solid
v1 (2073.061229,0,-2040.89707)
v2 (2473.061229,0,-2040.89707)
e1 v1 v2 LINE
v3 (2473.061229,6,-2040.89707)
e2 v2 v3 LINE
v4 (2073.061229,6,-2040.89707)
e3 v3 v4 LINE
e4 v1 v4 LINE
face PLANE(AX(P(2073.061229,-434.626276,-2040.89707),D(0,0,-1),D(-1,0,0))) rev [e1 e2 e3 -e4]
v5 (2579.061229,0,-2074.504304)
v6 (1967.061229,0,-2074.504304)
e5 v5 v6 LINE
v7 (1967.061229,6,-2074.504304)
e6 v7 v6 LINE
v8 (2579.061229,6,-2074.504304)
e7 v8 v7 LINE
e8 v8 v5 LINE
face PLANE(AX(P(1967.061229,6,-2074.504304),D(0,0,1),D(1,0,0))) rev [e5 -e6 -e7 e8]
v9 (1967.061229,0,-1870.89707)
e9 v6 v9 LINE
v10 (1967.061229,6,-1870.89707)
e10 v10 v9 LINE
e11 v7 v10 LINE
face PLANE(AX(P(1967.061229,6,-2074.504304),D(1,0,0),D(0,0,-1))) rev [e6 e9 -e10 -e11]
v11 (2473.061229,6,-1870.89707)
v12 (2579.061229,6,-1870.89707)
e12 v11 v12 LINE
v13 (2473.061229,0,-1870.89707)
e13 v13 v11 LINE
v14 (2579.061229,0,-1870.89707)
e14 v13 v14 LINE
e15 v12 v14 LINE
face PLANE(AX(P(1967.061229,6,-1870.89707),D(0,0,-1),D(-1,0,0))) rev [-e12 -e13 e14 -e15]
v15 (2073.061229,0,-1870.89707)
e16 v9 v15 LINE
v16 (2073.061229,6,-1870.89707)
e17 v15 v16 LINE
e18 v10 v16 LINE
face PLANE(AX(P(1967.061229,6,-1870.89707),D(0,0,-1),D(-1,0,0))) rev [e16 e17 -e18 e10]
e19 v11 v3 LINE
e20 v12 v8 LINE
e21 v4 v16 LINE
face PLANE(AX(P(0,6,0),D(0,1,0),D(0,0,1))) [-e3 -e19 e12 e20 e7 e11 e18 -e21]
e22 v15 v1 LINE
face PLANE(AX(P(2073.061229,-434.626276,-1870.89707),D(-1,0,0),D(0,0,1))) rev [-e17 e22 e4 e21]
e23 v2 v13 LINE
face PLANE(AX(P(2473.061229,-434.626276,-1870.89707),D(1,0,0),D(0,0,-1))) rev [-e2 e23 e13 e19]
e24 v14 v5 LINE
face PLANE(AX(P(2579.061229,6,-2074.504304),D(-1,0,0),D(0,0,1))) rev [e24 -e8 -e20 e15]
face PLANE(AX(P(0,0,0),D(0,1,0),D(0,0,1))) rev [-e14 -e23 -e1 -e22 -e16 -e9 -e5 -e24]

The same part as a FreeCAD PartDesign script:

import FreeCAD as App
import Part
import Sketcher
from FreeCAD import Vector
Q = App.Units.Quantity


def add_polygon(sketch, points):
    """Adds a closed chain of lines whose ends are joined by coincident constraints."""
    first, n = sketch.GeometryCount, len(points)
    for a, b in zip(points, points[1:] + points[:1]):
        sketch.addGeometry(Part.LineSegment(App.Vector(*a, 0), App.Vector(*b, 0)), False)
    for i in range(n):
        sketch.addConstraint(Sketcher.Constraint("Coincident", first + i, 2, first + (i + 1) % n, 1))

doc = App.newDocument("Part")
body = doc.addObject("PartDesign::Body", "Body")

# Sketch on XZ plane
sketch1 = body.newObject("Sketcher::SketchObject", "Sketch")
sketch1.AttachmentSupport = (doc.getObject("XZ_Plane"), [""])
sketch1.MapMode = "FlatFace"
add_polygon(sketch1, [(1967, -2075), (1967, -1871), (2579, -1871), (2579, -2075)])  # lines 0-3
sketch1.addConstraint(Sketcher.Constraint("Vertical", 0))
sketch1.addConstraint(Sketcher.Constraint("Horizontal", 1))
sketch1.addConstraint(Sketcher.Constraint("Vertical", 2))
sketch1.addConstraint(Sketcher.Constraint("Horizontal", 3))
sketch1.addConstraint(Sketcher.Constraint("DistanceX", 1, 1, 1, 2, Q("612 mm")))
sketch1.addConstraint(Sketcher.Constraint("DistanceY", 0, 1, 0, 2, Q("203.607234 mm")))
sketch1.addConstraint(Sketcher.Constraint("DistanceX", -1, 1, 0, 2, Q("1967.061229 mm")))
sketch1.addConstraint(Sketcher.Constraint("DistanceY", 0, 2, -1, 1, Q("1870.89707 mm")))
pad1 = body.newObject("PartDesign::Pad", "Pad")
pad1.Profile = sketch1
pad1.Length = 6
pad1.Reversed = True

# Sketch on XZ plane
sketch2 = body.newObject("Sketcher::SketchObject", "Sketch001")
sketch2.AttachmentSupport = (doc.getObject("XZ_Plane"), [""])
sketch2.MapMode = "FlatFace"
sketch2.AttachmentOffset = App.Placement(Vector(0, 0, -6), App.Rotation())
add_polygon(sketch2, [(2073, -2041), (2073, -1871), (2473, -1871), (2473, -2041)])  # lines 0-3
sketch2.addConstraint(Sketcher.Constraint("Vertical", 0))
sketch2.addConstraint(Sketcher.Constraint("Horizontal", 1))
sketch2.addConstraint(Sketcher.Constraint("Vertical", 2))
sketch2.addConstraint(Sketcher.Constraint("Horizontal", 3))
sketch2.addConstraint(Sketcher.Constraint("DistanceX", 1, 1, 1, 2, Q("400 mm")))
sketch2.addConstraint(Sketcher.Constraint("DistanceY", 0, 1, 0, 2, Q("170 mm")))
sketch2.addConstraint(Sketcher.Constraint("DistanceX", -1, 1, 0, 2, Q("2073.061229 mm")))
sketch2.addConstraint(Sketcher.Constraint("DistanceY", 0, 2, -1, 1, Q("1870.89707 mm")))
pocket1 = body.newObject("PartDesign::Pocket", "Pocket")
pocket1.Profile = sketch2
pocket1.Length = 6
pocket1.Reversed = True

doc.recompute()
